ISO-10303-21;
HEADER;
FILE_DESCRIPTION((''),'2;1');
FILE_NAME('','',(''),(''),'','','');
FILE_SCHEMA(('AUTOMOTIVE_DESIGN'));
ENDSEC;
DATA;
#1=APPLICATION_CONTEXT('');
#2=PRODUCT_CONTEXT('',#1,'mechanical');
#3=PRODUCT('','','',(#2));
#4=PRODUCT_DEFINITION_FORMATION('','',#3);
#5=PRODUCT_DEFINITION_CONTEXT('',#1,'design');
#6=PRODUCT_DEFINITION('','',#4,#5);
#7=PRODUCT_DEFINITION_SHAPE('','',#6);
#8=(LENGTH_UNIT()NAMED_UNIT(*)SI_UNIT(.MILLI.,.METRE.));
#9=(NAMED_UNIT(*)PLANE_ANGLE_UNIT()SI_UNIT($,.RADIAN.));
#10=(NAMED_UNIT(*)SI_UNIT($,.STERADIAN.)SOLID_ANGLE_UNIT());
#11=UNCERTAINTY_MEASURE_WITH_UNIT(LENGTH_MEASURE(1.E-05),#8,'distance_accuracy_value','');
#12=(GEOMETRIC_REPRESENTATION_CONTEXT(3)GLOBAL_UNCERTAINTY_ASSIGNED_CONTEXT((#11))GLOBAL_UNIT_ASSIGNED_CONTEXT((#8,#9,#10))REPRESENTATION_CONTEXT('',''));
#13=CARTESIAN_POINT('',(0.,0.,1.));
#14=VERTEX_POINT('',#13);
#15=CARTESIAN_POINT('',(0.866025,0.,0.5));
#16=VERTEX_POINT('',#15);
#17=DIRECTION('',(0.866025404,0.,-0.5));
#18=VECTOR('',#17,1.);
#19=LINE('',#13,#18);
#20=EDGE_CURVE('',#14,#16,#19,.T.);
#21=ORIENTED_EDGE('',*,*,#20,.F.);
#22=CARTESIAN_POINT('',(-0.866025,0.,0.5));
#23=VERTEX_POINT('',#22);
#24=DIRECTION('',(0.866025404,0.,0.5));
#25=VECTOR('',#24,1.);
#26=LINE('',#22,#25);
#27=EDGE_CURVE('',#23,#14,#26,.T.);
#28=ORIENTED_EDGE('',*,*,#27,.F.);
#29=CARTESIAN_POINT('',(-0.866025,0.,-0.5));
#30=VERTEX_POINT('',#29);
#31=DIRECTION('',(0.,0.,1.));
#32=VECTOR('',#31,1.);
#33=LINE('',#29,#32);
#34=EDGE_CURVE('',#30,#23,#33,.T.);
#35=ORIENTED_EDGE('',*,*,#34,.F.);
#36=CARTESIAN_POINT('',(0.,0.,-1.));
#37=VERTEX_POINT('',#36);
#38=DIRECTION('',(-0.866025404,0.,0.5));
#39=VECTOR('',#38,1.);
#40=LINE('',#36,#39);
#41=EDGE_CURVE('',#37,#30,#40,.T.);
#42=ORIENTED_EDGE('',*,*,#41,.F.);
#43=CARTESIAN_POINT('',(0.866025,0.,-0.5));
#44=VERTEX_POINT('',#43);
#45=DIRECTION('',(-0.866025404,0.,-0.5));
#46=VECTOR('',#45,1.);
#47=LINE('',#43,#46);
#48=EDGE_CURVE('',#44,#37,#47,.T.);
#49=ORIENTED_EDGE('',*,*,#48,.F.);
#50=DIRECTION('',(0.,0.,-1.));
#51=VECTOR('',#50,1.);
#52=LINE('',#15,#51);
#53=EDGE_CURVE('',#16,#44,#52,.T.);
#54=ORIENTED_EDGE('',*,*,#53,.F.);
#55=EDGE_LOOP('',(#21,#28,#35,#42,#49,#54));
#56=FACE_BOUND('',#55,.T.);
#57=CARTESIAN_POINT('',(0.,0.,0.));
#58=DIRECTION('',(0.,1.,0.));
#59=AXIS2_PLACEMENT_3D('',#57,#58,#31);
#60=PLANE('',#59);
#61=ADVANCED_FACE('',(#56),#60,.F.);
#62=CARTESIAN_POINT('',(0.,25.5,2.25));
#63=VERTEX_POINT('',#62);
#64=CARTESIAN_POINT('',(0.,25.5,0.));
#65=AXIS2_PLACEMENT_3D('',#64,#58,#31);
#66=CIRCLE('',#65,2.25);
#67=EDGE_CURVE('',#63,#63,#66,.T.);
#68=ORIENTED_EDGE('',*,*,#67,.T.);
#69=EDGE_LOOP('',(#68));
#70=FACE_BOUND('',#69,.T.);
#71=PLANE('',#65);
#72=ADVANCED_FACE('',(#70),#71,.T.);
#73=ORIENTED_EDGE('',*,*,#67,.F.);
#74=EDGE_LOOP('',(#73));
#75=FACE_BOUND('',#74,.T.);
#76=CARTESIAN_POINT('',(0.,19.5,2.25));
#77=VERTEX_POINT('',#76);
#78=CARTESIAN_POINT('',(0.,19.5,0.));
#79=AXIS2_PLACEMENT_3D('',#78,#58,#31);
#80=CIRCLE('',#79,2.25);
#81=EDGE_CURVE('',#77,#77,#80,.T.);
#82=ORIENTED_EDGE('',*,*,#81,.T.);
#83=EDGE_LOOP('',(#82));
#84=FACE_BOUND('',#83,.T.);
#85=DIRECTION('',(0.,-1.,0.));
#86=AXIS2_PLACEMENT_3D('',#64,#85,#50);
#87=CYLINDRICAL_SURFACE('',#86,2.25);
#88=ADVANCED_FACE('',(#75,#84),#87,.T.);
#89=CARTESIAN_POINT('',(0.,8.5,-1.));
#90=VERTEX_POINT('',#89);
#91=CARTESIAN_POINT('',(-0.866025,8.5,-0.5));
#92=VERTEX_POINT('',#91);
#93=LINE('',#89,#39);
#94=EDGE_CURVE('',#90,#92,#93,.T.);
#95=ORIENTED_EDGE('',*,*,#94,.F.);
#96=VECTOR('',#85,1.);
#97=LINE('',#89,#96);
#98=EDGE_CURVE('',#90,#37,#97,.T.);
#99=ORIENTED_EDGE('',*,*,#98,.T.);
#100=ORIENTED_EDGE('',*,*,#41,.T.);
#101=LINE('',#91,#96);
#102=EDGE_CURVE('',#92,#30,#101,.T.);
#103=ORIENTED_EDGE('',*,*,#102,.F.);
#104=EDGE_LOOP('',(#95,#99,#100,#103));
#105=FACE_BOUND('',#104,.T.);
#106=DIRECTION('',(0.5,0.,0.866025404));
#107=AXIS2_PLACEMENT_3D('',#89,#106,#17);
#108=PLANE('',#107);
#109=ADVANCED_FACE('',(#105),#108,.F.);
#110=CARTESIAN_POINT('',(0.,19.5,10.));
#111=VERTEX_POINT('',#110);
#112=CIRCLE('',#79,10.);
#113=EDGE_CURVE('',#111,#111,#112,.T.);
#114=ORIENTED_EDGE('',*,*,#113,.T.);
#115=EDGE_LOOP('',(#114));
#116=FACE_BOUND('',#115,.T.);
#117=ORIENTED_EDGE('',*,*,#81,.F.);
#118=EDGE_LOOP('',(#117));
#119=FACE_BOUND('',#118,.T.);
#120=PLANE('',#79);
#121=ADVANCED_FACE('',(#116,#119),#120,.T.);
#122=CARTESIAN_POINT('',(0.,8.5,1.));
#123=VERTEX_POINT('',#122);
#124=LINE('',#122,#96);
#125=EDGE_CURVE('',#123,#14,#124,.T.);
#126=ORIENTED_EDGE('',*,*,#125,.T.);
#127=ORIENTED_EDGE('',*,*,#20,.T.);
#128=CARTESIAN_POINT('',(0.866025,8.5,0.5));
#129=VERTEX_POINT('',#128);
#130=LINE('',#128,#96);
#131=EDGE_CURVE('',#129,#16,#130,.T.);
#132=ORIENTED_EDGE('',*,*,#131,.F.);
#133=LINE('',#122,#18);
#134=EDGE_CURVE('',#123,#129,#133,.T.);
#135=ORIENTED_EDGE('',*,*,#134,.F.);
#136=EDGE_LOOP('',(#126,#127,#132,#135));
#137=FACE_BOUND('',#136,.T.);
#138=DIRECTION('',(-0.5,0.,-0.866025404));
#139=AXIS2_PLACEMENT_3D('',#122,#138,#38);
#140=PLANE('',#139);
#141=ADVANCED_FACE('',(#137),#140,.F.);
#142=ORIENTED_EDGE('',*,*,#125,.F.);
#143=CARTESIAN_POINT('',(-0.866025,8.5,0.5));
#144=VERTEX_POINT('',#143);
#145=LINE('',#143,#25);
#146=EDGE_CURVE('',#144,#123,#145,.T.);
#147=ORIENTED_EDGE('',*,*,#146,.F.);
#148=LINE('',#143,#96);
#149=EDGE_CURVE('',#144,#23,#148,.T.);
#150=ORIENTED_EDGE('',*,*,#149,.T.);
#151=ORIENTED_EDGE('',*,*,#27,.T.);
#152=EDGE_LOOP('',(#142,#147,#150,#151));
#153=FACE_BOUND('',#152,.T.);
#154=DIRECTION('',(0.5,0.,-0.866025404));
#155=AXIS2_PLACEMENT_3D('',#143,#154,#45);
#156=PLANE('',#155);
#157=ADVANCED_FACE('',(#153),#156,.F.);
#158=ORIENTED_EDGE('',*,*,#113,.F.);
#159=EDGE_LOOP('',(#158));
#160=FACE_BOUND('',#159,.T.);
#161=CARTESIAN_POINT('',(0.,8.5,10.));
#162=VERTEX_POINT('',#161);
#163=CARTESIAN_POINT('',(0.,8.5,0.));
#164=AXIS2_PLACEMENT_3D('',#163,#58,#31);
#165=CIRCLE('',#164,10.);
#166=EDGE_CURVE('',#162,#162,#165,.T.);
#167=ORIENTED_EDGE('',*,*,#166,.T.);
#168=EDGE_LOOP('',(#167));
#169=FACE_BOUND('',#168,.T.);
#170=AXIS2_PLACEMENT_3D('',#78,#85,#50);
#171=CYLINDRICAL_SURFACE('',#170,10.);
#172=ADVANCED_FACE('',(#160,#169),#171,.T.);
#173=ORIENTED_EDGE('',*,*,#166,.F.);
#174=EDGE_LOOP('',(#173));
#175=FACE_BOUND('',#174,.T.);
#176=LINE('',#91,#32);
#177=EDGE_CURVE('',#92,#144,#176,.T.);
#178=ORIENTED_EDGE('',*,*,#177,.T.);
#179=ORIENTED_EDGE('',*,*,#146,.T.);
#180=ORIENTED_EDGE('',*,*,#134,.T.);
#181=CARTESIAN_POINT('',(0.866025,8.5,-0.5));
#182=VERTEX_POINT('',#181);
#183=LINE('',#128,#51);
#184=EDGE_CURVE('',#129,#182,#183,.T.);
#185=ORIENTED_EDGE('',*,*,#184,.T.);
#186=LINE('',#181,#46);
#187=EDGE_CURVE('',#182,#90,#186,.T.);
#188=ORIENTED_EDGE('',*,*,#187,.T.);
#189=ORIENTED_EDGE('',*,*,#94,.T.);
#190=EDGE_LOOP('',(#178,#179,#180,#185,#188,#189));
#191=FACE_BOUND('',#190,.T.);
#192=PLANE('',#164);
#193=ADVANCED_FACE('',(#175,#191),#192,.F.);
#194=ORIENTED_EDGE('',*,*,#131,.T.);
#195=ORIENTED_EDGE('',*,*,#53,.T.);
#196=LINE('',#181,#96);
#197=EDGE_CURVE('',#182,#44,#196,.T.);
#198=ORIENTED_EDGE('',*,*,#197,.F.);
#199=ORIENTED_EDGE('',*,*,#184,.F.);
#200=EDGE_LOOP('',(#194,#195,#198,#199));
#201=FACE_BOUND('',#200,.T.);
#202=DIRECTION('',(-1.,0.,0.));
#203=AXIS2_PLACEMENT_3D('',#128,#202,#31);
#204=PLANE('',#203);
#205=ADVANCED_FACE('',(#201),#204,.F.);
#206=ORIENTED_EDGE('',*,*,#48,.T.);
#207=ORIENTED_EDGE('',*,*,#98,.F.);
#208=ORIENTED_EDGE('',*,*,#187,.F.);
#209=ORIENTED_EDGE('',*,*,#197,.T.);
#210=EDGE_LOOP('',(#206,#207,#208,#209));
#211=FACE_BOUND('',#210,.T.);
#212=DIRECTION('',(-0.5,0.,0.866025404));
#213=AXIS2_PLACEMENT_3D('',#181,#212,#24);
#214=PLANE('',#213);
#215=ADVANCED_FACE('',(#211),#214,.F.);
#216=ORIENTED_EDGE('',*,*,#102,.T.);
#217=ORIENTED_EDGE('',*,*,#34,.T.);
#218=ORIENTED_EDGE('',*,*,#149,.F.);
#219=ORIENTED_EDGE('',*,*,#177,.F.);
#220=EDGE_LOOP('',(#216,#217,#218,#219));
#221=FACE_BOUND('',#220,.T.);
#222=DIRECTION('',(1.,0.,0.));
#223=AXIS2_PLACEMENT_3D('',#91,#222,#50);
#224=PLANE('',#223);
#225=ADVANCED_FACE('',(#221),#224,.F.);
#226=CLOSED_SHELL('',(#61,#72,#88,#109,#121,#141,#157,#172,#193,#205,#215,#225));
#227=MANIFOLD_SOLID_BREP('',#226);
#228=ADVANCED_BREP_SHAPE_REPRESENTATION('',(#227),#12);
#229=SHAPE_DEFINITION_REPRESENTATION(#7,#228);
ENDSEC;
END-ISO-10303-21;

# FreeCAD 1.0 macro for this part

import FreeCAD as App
import Part
import Sketcher
Q = App.Units.Quantity

doc = App.newDocument("Part")
body = doc.addObject("PartDesign::Body", "Body")

sketch1 = body.newObject("Sketcher::SketchObject", "Sketch")
sketch1.AttachmentSupport = (doc.getObject("XZ_Plane"), [""])
sketch1.MapMode = "FlatFace"
sketch1.addGeometry([
    Part.LineSegment(App.Vector(0, -1, 0), App.Vector(-0.866025, -0.5, 0)),
    Part.LineSegment(App.Vector(-0.866025, -0.5, 0), App.Vector(-0.866025, 0.5, 0)),
    Part.LineSegment(App.Vector(-0.866025, 0.5, 0), App.Vector(0, 1, 0)),
    Part.LineSegment(App.Vector(0, 1, 0), App.Vector(0.866025, 0.5, 0)),
    Part.LineSegment(App.Vector(0.866025, 0.5, 0), App.Vector(0.866025, -0.5, 0)),
    Part.LineSegment(App.Vector(0.866025, -0.5, 0), App.Vector(0, -1, 0)),
], False)
sketch1.addConstraint([
    Sketcher.Constraint("Coincident", 0, 2, 1, 1),
    Sketcher.Constraint("Coincident", 1, 2, 2, 1),
    Sketcher.Constraint("Coincident", 2, 2, 3, 1),
    Sketcher.Constraint("Coincident", 3, 2, 4, 1),
    Sketcher.Constraint("Coincident", 4, 2, 5, 1),
    Sketcher.Constraint("Coincident", 5, 2, 0, 1),
    Sketcher.Constraint("Vertical", 1),
    Sketcher.Constraint("Vertical", 4),
    Sketcher.Constraint("Symmetric", 0, 2, 3, 2, -1, 1),
    Sketcher.Constraint("Symmetric", 2, 2, 5, 2, -1, 1),
    Sketcher.Constraint("PointOnObject", 2, 2, -2),
    Sketcher.Constraint("Parallel", 2, 5),
    Sketcher.Constraint("Horizontal", 1, 2, 3, 2),
    Sketcher.Constraint("DistanceY", 1, 1, 1, 2, 1.0),
    Sketcher.Constraint("Angle", 0, Q("150 deg")),
    Sketcher.Constraint("Distance", 0, 1.0),
])
pad1 = body.newObject("PartDesign::Pad", "Pad")
pad1.Profile = sketch1
pad1.Length = 8.5
pad1.Reversed = True

sketch2 = body.newObject("Sketcher::SketchObject", "Sketch001")
sketch2.AttachmentSupport = (doc.getObject("XZ_Plane"), [""])
sketch2.MapMode = "FlatFace"
sketch2.AttachmentOffset = App.Placement(App.Vector(0, 0, -8.5), App.Rotation())
sketch2.addGeometry(Part.Circle(App.Vector(0, 0, 0), App.Vector(0, 0, 1), 10), False)
sketch2.addConstraint([
    Sketcher.Constraint("Coincident", 0, 3, -1, 1),
    Sketcher.Constraint("Diameter", 0, 20.0),
])
pad2 = body.newObject("PartDesign::Pad", "Pad001")
pad2.Profile = sketch2
pad2.Length = 11
pad2.Reversed = True

sketch3 = body.newObject("Sketcher::SketchObject", "Sketch002")
sketch3.AttachmentSupport = (doc.getObject("XZ_Plane"), [""])
sketch3.MapMode = "FlatFace"
sketch3.AttachmentOffset = App.Placement(App.Vector(0, 0, -19.5), App.Rotation())
sketch3.addGeometry(Part.Circle(App.Vector(0, 0, 0), App.Vector(0, 0, 1), 2.25), False)
sketch3.addConstraint([
    Sketcher.Constraint("Coincident", 0, 3, -1, 1),
    Sketcher.Constraint("Diameter", 0, 4.5),
])
pad3 = body.newObject("PartDesign::Pad", "Pad002")
pad3.Profile = sketch3
pad3.Length = 6
pad3.Reversed = True

doc.recompute()
